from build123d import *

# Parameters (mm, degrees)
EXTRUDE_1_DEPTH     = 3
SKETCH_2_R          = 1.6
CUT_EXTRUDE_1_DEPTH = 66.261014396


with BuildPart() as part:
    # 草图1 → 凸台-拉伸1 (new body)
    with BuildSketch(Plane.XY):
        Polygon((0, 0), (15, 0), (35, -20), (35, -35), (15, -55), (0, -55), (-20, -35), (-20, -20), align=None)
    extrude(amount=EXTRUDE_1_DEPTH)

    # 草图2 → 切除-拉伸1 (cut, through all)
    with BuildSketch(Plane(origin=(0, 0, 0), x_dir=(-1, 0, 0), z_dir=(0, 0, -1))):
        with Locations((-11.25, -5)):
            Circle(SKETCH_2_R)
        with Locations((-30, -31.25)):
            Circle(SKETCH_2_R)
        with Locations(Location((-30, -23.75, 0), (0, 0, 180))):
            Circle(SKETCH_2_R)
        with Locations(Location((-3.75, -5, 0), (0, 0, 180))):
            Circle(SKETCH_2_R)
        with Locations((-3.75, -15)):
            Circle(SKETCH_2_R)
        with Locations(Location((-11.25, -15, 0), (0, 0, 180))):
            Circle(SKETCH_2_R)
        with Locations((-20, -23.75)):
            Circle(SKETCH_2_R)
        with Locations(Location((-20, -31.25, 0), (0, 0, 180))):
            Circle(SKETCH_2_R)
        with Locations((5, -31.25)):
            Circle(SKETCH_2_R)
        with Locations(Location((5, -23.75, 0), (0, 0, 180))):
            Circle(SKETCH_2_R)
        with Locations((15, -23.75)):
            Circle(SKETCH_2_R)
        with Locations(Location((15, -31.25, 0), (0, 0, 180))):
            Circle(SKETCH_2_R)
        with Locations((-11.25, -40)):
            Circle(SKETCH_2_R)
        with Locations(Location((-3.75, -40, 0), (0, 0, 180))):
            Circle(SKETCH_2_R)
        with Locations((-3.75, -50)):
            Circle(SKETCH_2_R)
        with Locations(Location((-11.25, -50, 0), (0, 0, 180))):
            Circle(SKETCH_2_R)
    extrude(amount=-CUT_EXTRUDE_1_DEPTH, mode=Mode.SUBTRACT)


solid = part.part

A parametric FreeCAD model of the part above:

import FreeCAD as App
import Part
import Sketcher


def add_polygon(sketch, points):
    """Adds a closed chain of lines whose ends are joined by coincident constraints."""
    first, n = sketch.GeometryCount, len(points)
    for a, b in zip(points, points[1:] + points[:1]):
        sketch.addGeometry(Part.LineSegment(App.Vector(*a, 0), App.Vector(*b, 0)), False)
    for i in range(n):
        sketch.addConstraint(Sketcher.Constraint("Coincident", first + i, 2, first + (i + 1) % n, 1))

doc = App.newDocument("Part")
body = doc.addObject("PartDesign::Body", "Body")

sketch1 = doc.addObject("Sketcher::SketchObject", "Sketch")
body.addObject(sketch1)
sketch1.AttachmentSupport = (doc.XY_Plane, [""])
sketch1.MapMode = "FlatFace"
add_polygon(sketch1, [(15, 0), (0, 0), (-20, -20), (-20, -35), (0, -55), (15, -55), (35, -35), (35, -20)])
sketch1.addConstraint(Sketcher.Constraint("Horizontal", 0))
sketch1.addConstraint(Sketcher.Constraint("Vertical", 2))
sketch1.addConstraint(Sketcher.Constraint("Horizontal", 4))
sketch1.addConstraint(Sketcher.Constraint("Vertical", 6))
sketch1.addConstraint(Sketcher.Constraint("Coincident", 0, 2, -1, 1))
sketch1.addConstraint(Sketcher.Constraint("PointOnObject", 3, 2, -2))
sketch1.addConstraint(Sketcher.Constraint("Perpendicular", 1, 3))
sketch1.addConstraint(Sketcher.Constraint("Perpendicular", 3, 5))
sketch1.addConstraint(Sketcher.Constraint("Perpendicular", 5, 7))
sketch1.addConstraint(Sketcher.Constraint("Horizontal", 2, 2, 5, 2))
sketch1.addConstraint(Sketcher.Constraint("Horizontal", 1, 2, 6, 2))
sketch1.addConstraint(Sketcher.Constraint("Vertical", 4, 2, 7, 2))
sketch1.addConstraint(Sketcher.Constraint("Equal", 4, 2))
sketch1.addConstraint(Sketcher.Constraint("DistanceX", 0, 2, 0, 1, 15.0))
sketch1.addConstraint(Sketcher.Constraint("DistanceX", 1, 2, -1, 1, 20.0))
pad1 = doc.addObject("PartDesign::Pad", "Pad")
body.addObject(pad1)
pad1.Profile = sketch1
pad1.Length = 3

sketch2 = doc.addObject("Sketcher::SketchObject", "Sketch001")
body.addObject(sketch2)
sketch2.AttachmentSupport = (doc.XY_Plane, [""])
sketch2.MapMode = "FlatFace"
sketch2.addGeometry(Part.Circle(App.Vector(11.2, -5, 0), App.Vector(0, 0, 1), 1.6), False)
sketch2.addGeometry(Part.Circle(App.Vector(30, -31.2, 0), App.Vector(0, 0, 1), 1.6), False)
sketch2.addGeometry(Part.Circle(App.Vector(30, -23.8, 0), App.Vector(0, 0, 1), 1.6), False)
sketch2.addGeometry(Part.Circle(App.Vector(3.8, -5, 0), App.Vector(0, 0, 1), 1.6), False)
sketch2.addGeometry(Part.Circle(App.Vector(3.8, -15, 0), App.Vector(0, 0, 1), 1.6), False)
sketch2.addGeometry(Part.Circle(App.Vector(11.2, -15, 0), App.Vector(0, 0, 1), 1.6), False)
sketch2.addGeometry(Part.Circle(App.Vector(20, -23.8, 0), App.Vector(0, 0, 1), 1.6), False)
sketch2.addGeometry(Part.Circle(App.Vector(20, -31.2, 0), App.Vector(0, 0, 1), 1.6), False)
sketch2.addGeometry(Part.Circle(App.Vector(-5, -31.2, 0), App.Vector(0, 0, 1), 1.6), False)
sketch2.addGeometry(Part.Circle(App.Vector(-5, -23.8, 0), App.Vector(0, 0, 1), 1.6), False)
sketch2.addGeometry(Part.Circle(App.Vector(-15, -23.8, 0), App.Vector(0, 0, 1), 1.6), False)
sketch2.addGeometry(Part.Circle(App.Vector(-15, -31.2, 0), App.Vector(0, 0, 1), 1.6), False)
sketch2.addGeometry(Part.Circle(App.Vector(11.2, -40, 0), App.Vector(0, 0, 1), 1.6), False)
sketch2.addGeometry(Part.Circle(App.Vector(3.8, -40, 0), App.Vector(0, 0, 1), 1.6), False)
sketch2.addGeometry(Part.Circle(App.Vector(3.8, -50, 0), App.Vector(0, 0, 1), 1.6), False)
sketch2.addGeometry(Part.Circle(App.Vector(11.2, -50, 0), App.Vector(0, 0, 1), 1.6), False)
sketch2.addConstraint(Sketcher.Constraint("Equal", 0, 1))
sketch2.addConstraint(Sketcher.Constraint("Equal", 1, 2))
sketch2.addConstraint(Sketcher.Constraint("Equal", 2, 3))
sketch2.addConstraint(Sketcher.Constraint("Equal", 3, 4))
sketch2.addConstraint(Sketcher.Constraint("Equal", 4, 5))
sketch2.addConstraint(Sketcher.Constraint("Equal", 5, 6))
sketch2.addConstraint(Sketcher.Constraint("Equal", 6, 7))
sketch2.addConstraint(Sketcher.Constraint("Equal", 7, 8))
sketch2.addConstraint(Sketcher.Constraint("Equal", 8, 9))
sketch2.addConstraint(Sketcher.Constraint("Equal", 9, 10))
sketch2.addConstraint(Sketcher.Constraint("Equal", 10, 11))
sketch2.addConstraint(Sketcher.Constraint("Equal", 11, 12))
sketch2.addConstraint(Sketcher.Constraint("Equal", 12, 13))
sketch2.addConstraint(Sketcher.Constraint("Equal", 13, 14))
sketch2.addConstraint(Sketcher.Constraint("Equal", 14, 15))
sketch2.addConstraint(Sketcher.Constraint("Horizontal", 0, 3, 3, 3))
sketch2.addConstraint(Sketcher.Constraint("Horizontal", 4, 3, 5, 3))
sketch2.addConstraint(Sketcher.Constraint("Horizontal", 2, 3, 6, 3))
sketch2.addConstraint(Sketcher.Constraint("Horizontal", 1, 3, 7, 3))
sketch2.addConstraint(Sketcher.Constraint("Horizontal", 7, 3, 8, 3))
sketch2.addConstraint(Sketcher.Constraint("Horizontal", 6, 3, 9, 3))
sketch2.addConstraint(Sketcher.Constraint("Horizontal", 9, 3, 10, 3))
sketch2.addConstraint(Sketcher.Constraint("Horizontal", 8, 3, 11, 3))
sketch2.addConstraint(Sketcher.Constraint("Horizontal", 12, 3, 13, 3))
sketch2.addConstraint(Sketcher.Constraint("Horizontal", 14, 3, 15, 3))
sketch2.addConstraint(Sketcher.Constraint("Vertical", 1, 3, 2, 3))
sketch2.addConstraint(Sketcher.Constraint("Vertical", 3, 3, 4, 3))
sketch2.addConstraint(Sketcher.Constraint("Vertical", 0, 3, 5, 3))
sketch2.addConstraint(Sketcher.Constraint("Vertical", 6, 3, 7, 3))
sketch2.addConstraint(Sketcher.Constraint("Vertical", 8, 3, 9, 3))
sketch2.addConstraint(Sketcher.Constraint("Vertical", 10, 3, 11, 3))
sketch2.addConstraint(Sketcher.Constraint("Vertical", 5, 3, 12, 3))
sketch2.addConstraint(Sketcher.Constraint("Vertical", 4, 3, 13, 3))
sketch2.addConstraint(Sketcher.Constraint("Vertical", 13, 3, 14, 3))
sketch2.addConstraint(Sketcher.Constraint("Vertical", 12, 3, 15, 3))
sketch2.addConstraint(Sketcher.Constraint("Diameter", 0, 3.2))
sketch2.addConstraint(Sketcher.Constraint("DistanceY", 0, 3, -1, 1, 5.0))
sketch2.addConstraint(Sketcher.Constraint("DistanceX", -1, 1, 1, 3, 30.0))
sketch2.addConstraint(Sketcher.Constraint("DistanceY", 4, 3, -1, 1, 15.0))
sketch2.addConstraint(Sketcher.Constraint("DistanceX", -1, 1, 6, 3, 20.0))
sketch2.addConstraint(Sketcher.Constraint("DistanceX", 8, 3, -1, 1, 5.0))
sketch2.addConstraint(Sketcher.Constraint("DistanceX", 10, 3, -1, 1, 15.0))
sketch2.addConstraint(Sketcher.Constraint("DistanceY", 12, 3, -1, 1, 40.0))
sketch2.addConstraint(Sketcher.Constraint("DistanceY", 14, 3, -1, 1, 50.0))
sketch2.addConstraint(Sketcher.Constraint("DistanceY", 1, 3, 2, 3, 7.5))
sketch2.addConstraint(Sketcher.Constraint("DistanceX", 3, 3, 0, 3, 7.5))
sketch2.addConstraint(Sketcher.Constraint("DistanceX", -1, 1, 0, 3, 11.25))
sketch2.addConstraint(Sketcher.Constraint("DistanceY", 1, 3, -1, 1, 31.25))
pocket1 = doc.addObject("PartDesign::Pocket", "Pocket")
body.addObject(pocket1)
pocket1.Profile = sketch2
pocket1.Type = "ThroughAll"
pocket1.Reversed = True

doc.recompute()
